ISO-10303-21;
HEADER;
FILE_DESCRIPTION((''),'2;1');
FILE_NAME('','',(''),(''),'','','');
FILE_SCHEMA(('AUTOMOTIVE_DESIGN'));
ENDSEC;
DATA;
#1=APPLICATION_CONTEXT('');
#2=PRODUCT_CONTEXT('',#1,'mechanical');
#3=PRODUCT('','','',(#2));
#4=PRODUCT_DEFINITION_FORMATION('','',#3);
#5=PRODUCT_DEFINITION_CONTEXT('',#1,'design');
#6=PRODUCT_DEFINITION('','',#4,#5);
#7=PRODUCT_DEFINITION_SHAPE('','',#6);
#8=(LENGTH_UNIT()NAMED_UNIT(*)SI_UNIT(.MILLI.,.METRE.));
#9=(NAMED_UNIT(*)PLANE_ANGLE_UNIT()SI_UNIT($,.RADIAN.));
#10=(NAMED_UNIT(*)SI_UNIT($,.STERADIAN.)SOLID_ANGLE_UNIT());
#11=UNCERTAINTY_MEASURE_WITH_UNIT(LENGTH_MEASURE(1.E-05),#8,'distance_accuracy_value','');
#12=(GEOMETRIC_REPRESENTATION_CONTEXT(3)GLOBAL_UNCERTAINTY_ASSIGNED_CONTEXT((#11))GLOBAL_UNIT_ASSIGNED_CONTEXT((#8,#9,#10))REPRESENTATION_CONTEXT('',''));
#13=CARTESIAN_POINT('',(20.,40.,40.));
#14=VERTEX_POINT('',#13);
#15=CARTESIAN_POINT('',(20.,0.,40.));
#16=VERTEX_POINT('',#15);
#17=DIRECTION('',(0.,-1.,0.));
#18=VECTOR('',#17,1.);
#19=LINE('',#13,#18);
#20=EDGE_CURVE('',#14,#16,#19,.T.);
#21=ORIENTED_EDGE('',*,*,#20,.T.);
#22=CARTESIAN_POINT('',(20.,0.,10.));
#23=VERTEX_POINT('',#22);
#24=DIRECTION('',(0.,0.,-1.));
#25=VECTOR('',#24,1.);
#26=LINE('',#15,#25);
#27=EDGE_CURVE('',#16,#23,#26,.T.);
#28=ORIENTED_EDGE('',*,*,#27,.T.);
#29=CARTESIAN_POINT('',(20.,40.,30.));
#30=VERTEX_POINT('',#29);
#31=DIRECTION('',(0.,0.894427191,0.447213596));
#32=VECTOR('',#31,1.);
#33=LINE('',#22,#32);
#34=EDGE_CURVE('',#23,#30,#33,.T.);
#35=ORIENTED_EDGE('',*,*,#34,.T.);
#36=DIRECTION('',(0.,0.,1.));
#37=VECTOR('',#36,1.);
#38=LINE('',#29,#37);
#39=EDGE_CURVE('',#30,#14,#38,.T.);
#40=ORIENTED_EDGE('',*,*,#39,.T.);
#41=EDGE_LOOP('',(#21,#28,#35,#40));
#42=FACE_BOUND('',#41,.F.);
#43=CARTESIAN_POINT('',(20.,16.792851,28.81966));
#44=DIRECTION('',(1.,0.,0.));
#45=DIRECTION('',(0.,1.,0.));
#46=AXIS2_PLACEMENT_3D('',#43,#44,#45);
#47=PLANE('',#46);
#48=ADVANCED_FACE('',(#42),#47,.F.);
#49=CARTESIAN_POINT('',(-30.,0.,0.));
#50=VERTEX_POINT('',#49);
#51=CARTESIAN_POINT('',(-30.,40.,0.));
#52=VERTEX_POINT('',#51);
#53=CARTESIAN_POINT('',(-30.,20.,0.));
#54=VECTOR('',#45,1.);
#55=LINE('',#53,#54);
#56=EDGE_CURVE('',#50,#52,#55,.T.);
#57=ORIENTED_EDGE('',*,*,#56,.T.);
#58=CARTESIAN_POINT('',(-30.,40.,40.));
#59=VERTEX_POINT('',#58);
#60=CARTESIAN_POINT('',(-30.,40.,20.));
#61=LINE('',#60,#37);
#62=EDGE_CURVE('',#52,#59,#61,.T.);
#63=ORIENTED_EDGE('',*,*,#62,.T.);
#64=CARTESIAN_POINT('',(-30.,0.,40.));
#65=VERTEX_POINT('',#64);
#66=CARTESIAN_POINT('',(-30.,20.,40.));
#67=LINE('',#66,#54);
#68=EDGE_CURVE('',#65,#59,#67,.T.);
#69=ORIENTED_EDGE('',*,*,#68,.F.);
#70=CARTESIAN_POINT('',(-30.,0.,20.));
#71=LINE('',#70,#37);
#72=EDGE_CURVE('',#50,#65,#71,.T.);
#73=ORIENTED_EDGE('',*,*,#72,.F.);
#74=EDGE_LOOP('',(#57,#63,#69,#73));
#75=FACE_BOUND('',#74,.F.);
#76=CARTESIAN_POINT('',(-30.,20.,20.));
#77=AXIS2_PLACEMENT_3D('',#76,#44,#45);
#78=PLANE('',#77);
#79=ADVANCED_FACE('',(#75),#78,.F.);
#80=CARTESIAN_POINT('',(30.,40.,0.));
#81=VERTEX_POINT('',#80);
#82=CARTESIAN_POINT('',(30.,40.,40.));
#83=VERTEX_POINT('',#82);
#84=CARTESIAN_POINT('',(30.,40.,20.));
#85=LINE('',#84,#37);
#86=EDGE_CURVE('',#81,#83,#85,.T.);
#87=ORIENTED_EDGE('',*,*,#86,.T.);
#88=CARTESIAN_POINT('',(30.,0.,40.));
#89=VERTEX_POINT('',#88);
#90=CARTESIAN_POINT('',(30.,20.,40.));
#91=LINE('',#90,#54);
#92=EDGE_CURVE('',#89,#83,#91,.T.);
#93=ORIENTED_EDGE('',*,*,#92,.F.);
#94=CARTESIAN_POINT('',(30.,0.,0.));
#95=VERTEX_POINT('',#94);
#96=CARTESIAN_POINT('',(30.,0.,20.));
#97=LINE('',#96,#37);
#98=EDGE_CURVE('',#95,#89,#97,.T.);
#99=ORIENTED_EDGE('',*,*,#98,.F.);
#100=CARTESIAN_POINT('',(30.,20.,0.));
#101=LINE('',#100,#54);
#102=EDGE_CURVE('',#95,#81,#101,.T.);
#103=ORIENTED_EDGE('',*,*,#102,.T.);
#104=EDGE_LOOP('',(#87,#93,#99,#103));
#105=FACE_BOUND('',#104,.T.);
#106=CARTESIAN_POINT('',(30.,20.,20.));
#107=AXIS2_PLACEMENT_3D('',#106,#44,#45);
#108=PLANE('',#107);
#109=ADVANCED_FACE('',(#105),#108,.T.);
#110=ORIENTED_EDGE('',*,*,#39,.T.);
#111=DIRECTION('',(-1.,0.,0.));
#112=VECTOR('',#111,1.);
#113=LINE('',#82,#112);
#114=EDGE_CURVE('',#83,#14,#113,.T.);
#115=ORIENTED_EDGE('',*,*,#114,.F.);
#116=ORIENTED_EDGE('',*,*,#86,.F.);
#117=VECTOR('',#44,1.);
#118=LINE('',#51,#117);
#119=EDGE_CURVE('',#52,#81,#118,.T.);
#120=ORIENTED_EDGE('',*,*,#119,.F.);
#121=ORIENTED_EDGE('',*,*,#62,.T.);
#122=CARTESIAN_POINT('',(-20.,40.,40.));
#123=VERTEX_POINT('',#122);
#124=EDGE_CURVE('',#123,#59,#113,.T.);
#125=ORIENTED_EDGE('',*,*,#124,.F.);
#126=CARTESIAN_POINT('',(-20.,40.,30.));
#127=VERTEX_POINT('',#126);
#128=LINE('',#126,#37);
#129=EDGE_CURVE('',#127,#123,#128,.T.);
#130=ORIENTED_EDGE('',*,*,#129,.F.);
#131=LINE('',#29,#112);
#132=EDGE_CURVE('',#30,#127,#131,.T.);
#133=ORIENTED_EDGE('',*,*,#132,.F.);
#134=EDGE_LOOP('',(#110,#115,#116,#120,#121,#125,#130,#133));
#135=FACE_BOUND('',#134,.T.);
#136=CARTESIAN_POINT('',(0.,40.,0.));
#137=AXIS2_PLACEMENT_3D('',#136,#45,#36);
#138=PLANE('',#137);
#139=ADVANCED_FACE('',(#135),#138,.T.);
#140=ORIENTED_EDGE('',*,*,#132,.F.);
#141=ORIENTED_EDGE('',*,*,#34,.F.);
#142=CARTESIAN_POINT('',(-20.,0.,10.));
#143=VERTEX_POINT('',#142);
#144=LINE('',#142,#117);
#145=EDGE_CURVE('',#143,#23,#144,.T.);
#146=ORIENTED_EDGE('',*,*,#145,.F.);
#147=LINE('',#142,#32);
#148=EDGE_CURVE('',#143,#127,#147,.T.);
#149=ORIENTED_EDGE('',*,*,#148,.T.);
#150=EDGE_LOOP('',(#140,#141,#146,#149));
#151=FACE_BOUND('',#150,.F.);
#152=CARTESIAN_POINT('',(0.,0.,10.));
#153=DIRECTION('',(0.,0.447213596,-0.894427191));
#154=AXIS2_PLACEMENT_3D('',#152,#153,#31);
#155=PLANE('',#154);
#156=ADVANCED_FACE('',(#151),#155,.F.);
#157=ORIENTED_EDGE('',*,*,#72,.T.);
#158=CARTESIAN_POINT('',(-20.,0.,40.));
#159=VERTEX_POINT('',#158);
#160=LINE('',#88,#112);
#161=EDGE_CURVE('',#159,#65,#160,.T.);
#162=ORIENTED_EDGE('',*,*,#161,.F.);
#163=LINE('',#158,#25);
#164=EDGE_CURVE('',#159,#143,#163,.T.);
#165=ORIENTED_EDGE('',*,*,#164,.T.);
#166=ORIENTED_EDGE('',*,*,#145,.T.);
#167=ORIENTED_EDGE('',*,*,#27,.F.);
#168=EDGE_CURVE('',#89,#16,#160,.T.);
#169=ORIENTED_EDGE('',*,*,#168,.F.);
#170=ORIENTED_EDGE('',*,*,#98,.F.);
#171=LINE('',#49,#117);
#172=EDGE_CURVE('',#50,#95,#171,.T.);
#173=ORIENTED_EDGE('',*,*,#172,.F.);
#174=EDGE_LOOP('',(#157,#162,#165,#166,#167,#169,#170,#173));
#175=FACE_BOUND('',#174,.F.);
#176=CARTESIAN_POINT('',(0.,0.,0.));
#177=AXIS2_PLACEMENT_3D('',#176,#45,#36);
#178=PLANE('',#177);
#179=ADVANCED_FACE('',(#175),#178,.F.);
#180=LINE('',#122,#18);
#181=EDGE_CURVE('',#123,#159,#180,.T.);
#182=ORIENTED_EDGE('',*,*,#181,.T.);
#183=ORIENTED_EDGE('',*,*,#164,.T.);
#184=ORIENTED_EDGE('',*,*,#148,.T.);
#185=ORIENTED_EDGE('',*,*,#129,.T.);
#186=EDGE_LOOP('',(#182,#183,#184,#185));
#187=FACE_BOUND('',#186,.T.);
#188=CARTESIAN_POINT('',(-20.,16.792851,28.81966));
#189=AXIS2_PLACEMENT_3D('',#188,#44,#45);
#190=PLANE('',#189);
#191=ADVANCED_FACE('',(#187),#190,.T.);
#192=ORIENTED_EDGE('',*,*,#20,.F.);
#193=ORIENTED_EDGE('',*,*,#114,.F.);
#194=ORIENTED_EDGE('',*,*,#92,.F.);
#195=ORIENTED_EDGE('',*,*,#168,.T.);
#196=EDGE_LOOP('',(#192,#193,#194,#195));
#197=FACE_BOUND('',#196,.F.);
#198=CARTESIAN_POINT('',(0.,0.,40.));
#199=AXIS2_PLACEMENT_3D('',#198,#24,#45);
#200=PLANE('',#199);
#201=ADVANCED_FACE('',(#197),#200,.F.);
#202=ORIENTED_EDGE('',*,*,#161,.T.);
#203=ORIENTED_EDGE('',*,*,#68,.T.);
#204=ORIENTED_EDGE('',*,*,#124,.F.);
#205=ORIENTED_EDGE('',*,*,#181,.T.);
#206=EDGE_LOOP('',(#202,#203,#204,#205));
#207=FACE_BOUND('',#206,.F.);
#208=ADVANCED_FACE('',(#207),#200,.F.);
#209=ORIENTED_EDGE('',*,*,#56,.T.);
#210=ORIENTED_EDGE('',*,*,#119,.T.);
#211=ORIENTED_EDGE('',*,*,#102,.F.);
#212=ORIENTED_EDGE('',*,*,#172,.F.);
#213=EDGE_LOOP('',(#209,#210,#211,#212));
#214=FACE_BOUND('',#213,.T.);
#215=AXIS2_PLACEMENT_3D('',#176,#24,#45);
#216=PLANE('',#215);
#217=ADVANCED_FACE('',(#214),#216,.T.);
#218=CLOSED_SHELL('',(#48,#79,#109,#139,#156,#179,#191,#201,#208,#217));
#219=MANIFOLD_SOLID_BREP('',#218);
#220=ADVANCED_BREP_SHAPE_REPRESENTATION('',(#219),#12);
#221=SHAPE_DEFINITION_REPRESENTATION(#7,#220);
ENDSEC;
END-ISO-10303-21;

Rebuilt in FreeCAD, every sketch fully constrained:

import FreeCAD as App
import Part
import Sketcher

doc = App.newDocument("Part")
body = doc.addObject("PartDesign::Body", "Body")

# Sketch on YZ plane
sketch1 = body.newObject("Sketcher::SketchObject", "Sketch")
sketch1.AttachmentSupport = (doc.getObject("YZ_Plane"), [""])
sketch1.MapMode = "FlatFace"
sketch1.addGeometry(Part.LineSegment(App.Vector(0, 40, 0), App.Vector(0, 0, 0)), False)
sketch1.addGeometry(Part.LineSegment(App.Vector(0, 0, 0), App.Vector(40, 0, 0)), False)
sketch1.addGeometry(Part.LineSegment(App.Vector(40, 0, 0), App.Vector(40, 40, 0)), False)
sketch1.addGeometry(Part.LineSegment(App.Vector(40, 40, 0), App.Vector(0, 40, 0)), False)
sketch1.addConstraint(Sketcher.Constraint("Coincident", 0, 2, 1, 1))
sketch1.addConstraint(Sketcher.Constraint("Coincident", 1, 2, 2, 1))
sketch1.addConstraint(Sketcher.Constraint("Coincident", 2, 2, 3, 1))
sketch1.addConstraint(Sketcher.Constraint("Coincident", 3, 2, 0, 1))
sketch1.addConstraint(Sketcher.Constraint("Vertical", 0))
sketch1.addConstraint(Sketcher.Constraint("Horizontal", 1))
sketch1.addConstraint(Sketcher.Constraint("Vertical", 2))
sketch1.addConstraint(Sketcher.Constraint("Horizontal", 3))
sketch1.addConstraint(Sketcher.Constraint("Coincident", 0, 2, -1, 1))
sketch1.addConstraint(Sketcher.Constraint("Equal", 3, 0))
sketch1.addConstraint(Sketcher.Constraint("DistanceX", 1, 1, 1, 2, 40.0))
pad1 = body.newObject("PartDesign::Pad", "Pad")
pad1.Profile = sketch1
pad1.Length = 60
pad1.Midplane = True

# Sketch on YZ plane
sketch2 = body.newObject("Sketcher::SketchObject", "Sketch001")
sketch2.AttachmentSupport = (doc.getObject("YZ_Plane"), [""])
sketch2.MapMode = "FlatFace"
sketch2.addGeometry(Part.LineSegment(App.Vector(40, 40, 0), App.Vector(0, 40, 0)), False)
sketch2.addGeometry(Part.LineSegment(App.Vector(0, 40, 0), App.Vector(0, 10, 0)), False)
sketch2.addGeometry(Part.LineSegment(App.Vector(0, 10, 0), App.Vector(40, 30, 0)), False)
sketch2.addGeometry(Part.LineSegment(App.Vector(40, 30, 0), App.Vector(40, 40, 0)), False)
sketch2.addConstraint(Sketcher.Constraint("Coincident", 0, 2, 1, 1))
sketch2.addConstraint(Sketcher.Constraint("Coincident", 1, 2, 2, 1))
sketch2.addConstraint(Sketcher.Constraint("Coincident", 2, 2, 3, 1))
sketch2.addConstraint(Sketcher.Constraint("Coincident", 3, 2, 0, 1))
sketch2.addConstraint(Sketcher.Constraint("Horizontal", 0))
sketch2.addConstraint(Sketcher.Constraint("Vertical", 1))
sketch2.addConstraint(Sketcher.Constraint("Vertical", 3))
sketch2.addConstraint(Sketcher.Constraint("PointOnObject", 0, 2, -2))
sketch2.addConstraint(Sketcher.Constraint("DistanceX", 0, 2, 0, 1, 40.0))
sketch2.addConstraint(Sketcher.Constraint("DistanceY", 1, 2, 1, 1, 30.0))
sketch2.addConstraint(Sketcher.Constraint("DistanceY", 3, 1, 3, 2, 10.0))
sketch2.addConstraint(Sketcher.Constraint("DistanceY", -1, 1, 0, 2, 40.0))
pocket1 = body.newObject("PartDesign::Pocket", "Pocket")
pocket1.Profile = sketch2
pocket1.Length = 40
pocket1.Midplane = True

doc.recompute()
